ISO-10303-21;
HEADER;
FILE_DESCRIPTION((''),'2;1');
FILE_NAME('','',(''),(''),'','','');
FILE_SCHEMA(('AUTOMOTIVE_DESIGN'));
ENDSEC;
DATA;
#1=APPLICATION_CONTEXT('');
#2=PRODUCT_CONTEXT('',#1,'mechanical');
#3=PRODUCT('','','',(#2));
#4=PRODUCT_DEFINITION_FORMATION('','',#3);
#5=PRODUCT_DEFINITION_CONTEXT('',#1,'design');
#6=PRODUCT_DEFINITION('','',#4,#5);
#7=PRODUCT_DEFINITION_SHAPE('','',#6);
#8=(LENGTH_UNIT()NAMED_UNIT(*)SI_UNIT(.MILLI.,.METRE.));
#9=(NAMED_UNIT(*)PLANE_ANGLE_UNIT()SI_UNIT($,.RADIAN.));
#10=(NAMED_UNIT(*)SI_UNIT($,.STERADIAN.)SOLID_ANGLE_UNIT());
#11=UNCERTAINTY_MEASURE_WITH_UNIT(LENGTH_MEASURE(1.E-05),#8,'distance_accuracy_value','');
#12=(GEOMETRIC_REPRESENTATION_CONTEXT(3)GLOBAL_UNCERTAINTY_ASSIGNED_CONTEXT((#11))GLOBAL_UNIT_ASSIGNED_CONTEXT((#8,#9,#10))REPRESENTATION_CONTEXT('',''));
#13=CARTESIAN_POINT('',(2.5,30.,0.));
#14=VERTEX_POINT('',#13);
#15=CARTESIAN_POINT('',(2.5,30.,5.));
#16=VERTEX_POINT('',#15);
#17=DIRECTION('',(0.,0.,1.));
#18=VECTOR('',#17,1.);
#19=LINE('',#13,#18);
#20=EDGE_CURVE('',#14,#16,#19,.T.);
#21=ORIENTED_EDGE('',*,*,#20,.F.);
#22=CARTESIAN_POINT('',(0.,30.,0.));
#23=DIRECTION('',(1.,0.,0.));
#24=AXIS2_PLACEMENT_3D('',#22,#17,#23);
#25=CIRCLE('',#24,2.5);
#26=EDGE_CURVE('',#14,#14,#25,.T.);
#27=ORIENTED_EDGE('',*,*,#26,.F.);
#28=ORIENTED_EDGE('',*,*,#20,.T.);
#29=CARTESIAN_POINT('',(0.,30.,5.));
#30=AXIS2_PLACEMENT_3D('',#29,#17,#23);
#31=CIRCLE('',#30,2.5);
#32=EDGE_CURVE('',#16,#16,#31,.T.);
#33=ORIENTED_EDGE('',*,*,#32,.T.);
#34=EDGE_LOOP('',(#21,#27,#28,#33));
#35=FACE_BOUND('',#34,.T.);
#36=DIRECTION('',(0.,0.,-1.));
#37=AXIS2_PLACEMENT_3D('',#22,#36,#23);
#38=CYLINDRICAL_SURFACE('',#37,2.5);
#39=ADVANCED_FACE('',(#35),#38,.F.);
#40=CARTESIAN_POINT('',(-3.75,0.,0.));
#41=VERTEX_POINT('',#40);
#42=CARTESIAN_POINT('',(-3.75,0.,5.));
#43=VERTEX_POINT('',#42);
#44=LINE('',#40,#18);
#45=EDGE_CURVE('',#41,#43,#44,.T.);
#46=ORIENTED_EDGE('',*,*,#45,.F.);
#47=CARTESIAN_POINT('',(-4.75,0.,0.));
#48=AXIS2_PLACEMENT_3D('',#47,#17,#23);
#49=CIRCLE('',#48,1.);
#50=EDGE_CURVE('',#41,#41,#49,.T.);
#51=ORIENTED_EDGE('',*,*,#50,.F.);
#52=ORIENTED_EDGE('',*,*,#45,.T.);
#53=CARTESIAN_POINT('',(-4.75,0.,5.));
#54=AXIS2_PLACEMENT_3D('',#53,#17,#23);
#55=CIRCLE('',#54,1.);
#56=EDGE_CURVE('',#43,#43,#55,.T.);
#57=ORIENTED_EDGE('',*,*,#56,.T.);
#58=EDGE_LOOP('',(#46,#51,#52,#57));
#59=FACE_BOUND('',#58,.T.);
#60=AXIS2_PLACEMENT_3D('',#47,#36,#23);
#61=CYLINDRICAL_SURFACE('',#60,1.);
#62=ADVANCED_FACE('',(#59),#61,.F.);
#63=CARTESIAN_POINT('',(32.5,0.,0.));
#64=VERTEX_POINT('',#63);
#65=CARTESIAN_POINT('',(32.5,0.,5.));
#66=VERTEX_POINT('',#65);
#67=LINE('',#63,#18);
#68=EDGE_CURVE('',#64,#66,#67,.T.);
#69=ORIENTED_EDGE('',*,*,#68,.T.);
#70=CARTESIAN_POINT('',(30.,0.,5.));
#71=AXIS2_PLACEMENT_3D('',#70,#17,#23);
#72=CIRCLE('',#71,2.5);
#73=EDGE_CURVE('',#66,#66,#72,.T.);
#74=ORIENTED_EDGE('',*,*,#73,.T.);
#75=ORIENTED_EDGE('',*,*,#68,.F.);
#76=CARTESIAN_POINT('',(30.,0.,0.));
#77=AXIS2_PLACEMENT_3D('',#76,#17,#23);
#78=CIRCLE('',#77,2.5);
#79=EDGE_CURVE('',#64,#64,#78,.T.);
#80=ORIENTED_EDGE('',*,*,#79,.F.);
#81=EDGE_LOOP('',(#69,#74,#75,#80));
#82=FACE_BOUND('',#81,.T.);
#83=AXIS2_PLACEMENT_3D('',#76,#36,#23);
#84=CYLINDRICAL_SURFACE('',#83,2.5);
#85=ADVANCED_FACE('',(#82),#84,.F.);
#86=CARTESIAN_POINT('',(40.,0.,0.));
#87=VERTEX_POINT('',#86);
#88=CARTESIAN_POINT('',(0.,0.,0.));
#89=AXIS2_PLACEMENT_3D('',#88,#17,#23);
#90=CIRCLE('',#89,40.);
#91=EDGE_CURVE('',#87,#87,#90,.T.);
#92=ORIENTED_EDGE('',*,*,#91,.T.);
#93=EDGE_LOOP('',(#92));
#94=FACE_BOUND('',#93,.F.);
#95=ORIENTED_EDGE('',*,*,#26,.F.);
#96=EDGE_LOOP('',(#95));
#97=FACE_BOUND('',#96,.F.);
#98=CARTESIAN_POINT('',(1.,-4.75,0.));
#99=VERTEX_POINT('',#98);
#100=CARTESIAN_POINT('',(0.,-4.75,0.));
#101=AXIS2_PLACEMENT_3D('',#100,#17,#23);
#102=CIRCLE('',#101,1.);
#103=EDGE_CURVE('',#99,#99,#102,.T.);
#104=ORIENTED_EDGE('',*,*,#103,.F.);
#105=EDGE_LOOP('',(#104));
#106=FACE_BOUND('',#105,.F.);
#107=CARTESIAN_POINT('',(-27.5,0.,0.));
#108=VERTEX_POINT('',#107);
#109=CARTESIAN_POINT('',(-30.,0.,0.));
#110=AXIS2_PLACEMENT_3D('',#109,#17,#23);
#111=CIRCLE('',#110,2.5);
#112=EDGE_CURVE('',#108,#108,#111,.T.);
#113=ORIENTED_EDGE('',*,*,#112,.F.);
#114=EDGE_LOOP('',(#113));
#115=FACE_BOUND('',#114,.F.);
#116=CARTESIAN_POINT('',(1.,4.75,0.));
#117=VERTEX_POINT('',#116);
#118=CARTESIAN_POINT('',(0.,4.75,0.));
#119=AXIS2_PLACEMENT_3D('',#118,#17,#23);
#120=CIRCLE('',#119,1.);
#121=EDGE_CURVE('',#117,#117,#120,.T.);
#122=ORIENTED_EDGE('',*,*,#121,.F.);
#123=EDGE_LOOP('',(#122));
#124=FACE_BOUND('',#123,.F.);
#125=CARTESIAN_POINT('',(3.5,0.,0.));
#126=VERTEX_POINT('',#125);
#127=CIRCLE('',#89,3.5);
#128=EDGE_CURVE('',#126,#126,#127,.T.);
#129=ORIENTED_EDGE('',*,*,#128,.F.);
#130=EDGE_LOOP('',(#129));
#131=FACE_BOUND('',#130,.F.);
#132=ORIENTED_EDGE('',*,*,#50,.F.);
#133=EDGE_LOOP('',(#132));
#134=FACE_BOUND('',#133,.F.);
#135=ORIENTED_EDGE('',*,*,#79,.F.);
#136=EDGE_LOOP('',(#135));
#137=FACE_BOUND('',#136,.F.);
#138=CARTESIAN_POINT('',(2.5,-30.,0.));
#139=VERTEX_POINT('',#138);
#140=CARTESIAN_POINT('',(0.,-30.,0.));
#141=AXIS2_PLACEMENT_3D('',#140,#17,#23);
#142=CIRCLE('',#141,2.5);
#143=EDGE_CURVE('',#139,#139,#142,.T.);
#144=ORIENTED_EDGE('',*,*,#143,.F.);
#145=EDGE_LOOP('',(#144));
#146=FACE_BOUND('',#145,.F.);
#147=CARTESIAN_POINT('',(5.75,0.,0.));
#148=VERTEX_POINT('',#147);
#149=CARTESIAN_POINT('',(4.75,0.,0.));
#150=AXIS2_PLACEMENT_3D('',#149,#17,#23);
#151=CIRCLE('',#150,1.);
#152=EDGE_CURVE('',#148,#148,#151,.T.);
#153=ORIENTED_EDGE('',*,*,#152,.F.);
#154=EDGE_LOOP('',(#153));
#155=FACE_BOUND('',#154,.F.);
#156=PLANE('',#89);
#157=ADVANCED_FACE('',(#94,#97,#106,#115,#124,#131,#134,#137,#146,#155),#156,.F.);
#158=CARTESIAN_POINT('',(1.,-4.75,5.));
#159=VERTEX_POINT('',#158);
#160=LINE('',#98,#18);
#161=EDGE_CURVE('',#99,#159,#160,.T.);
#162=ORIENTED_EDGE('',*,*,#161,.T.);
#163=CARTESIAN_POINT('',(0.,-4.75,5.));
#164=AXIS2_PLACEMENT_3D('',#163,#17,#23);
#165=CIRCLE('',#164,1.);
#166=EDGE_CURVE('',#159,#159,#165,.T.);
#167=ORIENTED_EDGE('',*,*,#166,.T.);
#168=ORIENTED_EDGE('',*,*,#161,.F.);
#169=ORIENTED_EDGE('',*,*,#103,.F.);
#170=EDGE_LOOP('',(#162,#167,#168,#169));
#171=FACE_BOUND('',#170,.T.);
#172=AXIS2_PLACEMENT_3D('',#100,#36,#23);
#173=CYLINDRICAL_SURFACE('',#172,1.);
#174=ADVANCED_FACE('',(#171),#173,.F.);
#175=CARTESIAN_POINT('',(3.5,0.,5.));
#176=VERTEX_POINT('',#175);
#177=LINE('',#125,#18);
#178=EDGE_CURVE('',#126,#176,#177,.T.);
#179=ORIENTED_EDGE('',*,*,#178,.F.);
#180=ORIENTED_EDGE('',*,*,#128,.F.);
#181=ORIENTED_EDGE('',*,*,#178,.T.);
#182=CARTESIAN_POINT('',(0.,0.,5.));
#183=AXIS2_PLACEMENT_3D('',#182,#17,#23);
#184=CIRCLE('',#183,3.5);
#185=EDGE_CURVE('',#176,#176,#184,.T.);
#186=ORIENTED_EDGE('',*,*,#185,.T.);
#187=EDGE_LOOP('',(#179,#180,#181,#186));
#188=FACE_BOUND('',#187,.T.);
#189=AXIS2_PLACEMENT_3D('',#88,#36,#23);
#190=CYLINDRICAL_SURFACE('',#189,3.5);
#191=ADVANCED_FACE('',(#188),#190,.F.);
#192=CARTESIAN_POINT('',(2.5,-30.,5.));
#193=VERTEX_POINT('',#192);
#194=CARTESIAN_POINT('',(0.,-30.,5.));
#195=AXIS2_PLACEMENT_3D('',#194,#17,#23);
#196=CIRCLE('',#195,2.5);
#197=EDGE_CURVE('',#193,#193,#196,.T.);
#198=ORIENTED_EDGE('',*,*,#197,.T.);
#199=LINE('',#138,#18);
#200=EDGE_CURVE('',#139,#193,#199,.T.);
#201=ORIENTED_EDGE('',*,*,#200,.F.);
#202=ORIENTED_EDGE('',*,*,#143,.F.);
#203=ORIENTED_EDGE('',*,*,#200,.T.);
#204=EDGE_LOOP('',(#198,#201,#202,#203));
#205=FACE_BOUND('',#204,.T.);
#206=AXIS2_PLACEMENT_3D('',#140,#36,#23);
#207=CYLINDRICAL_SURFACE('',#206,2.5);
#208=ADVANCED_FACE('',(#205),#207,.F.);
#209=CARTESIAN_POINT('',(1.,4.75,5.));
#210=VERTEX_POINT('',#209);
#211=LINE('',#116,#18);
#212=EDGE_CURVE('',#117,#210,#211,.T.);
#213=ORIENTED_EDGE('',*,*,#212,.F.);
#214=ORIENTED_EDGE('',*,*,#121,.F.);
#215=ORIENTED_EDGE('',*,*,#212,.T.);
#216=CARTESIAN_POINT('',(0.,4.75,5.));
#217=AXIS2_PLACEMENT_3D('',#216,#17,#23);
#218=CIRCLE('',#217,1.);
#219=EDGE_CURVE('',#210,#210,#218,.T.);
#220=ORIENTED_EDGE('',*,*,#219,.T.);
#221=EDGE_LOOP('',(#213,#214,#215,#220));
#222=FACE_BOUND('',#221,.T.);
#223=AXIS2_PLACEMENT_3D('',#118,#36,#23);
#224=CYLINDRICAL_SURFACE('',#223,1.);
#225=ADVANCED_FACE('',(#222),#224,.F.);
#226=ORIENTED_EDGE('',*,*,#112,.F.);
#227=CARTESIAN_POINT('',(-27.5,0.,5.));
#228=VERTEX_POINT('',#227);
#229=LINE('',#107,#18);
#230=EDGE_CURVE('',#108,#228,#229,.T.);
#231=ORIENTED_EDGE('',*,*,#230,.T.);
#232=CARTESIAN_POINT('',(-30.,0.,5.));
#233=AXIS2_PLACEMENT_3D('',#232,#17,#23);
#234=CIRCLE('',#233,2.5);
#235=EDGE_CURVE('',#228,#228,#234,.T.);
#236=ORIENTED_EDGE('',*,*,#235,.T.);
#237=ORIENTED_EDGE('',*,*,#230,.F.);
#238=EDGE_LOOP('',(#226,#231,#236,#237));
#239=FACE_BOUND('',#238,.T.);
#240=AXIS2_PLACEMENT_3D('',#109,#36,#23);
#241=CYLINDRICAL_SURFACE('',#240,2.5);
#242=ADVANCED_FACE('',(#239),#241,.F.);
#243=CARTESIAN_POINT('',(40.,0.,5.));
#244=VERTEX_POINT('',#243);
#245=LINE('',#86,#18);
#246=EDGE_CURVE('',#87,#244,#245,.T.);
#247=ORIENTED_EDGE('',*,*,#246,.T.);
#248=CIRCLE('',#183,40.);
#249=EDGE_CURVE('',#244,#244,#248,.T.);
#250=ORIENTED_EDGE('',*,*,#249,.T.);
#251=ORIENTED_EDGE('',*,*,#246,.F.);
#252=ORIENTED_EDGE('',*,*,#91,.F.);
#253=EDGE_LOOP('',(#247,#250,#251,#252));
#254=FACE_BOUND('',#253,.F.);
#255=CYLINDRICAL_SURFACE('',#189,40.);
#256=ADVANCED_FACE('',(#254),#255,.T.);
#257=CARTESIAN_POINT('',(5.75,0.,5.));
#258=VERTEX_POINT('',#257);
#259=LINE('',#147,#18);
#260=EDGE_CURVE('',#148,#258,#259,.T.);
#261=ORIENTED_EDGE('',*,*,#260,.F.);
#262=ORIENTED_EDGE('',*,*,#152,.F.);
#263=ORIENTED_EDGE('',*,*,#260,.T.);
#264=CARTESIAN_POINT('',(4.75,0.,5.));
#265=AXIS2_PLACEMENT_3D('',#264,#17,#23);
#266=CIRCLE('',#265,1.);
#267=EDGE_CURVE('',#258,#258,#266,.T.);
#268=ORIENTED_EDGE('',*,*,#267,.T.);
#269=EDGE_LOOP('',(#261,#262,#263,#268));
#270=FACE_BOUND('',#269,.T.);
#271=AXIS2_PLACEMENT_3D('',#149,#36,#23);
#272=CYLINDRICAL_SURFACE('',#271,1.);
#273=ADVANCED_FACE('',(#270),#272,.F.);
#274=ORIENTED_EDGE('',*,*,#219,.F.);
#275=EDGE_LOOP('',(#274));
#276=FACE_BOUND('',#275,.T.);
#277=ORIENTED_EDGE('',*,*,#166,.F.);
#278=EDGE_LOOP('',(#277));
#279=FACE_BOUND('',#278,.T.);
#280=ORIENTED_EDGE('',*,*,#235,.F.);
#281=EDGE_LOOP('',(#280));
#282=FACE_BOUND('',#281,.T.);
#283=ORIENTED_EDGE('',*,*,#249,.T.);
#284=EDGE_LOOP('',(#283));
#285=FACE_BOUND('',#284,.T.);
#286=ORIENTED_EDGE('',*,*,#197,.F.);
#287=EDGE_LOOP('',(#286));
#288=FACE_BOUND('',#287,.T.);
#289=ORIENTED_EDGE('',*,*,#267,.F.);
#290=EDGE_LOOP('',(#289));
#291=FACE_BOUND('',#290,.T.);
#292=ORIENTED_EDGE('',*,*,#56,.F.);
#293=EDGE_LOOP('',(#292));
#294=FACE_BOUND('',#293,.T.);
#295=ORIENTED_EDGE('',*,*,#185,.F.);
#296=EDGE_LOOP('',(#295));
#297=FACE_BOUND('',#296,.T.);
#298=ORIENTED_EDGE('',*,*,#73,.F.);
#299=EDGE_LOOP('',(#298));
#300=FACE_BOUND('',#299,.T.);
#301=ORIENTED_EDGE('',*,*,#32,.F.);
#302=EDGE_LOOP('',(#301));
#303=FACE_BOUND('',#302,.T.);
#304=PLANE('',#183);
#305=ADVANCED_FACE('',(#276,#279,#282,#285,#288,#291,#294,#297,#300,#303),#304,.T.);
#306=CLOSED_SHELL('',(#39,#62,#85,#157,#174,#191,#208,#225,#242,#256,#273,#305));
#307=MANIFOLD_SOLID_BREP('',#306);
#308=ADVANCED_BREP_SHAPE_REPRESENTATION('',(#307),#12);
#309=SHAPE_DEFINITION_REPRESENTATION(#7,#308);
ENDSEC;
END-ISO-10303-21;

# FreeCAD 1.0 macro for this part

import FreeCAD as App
import Part
import Sketcher

V = App.Vector

doc = App.newDocument("Part")
params = doc.addObject("Spreadsheet::Sheet", "Params")
for row, (alias, value) in enumerate([
    ("sketch1_diameter", "80 mm"),
    ("sketch1_diameter2", "5 mm"),
    ("sketch1_diameter3", "2 mm"),
    ("sketch1_diameter4", "7 mm"),
    ("pad1_length", "5 mm"),
], start=1):
    params.set(f"A{row}", alias)
    params.set(f"B{row}", "=" + value)
    params.setAlias(f"B{row}", alias)

body = doc.addObject("PartDesign::Body", "Body")

# Sketch on XY plane
sketch1 = doc.addObject("Sketcher::SketchObject", "Sketch")
body.addObject(sketch1)
sketch1.AttachmentSupport = (doc.XY_Plane, [""])
sketch1.MapMode = "FlatFace"
sketch1.addGeometry([
    Part.Circle(V(0, 0, 0), V(0, 0, 1), 40),  # 0
    Part.Circle(V(0, -30, 0), V(0, 0, 1), 2.5),  # 1
    Part.Circle(V(0, -4.8, 0), V(0, 0, 1), 1),  # 2
    Part.Circle(V(-30, 0, 0), V(0, 0, 1), 2.5),  # 3
    Part.Circle(V(-4.8, 0, 0), V(0, 0, 1), 1),  # 4
    Part.Circle(V(0, 0, 0), V(0, 0, 1), 3.5),  # 5
    Part.Circle(V(4.8, 0, 0), V(0, 0, 1), 1),  # 6
    Part.Circle(V(0, 4.8, 0), V(0, 0, 1), 1),  # 7
    Part.Circle(V(30, 0, 0), V(0, 0, 1), 2.5),  # 8
    Part.Circle(V(0, 30, 0), V(0, 0, 1), 2.5),  # 9
], False)
sketch1.addConstraint([
    Sketcher.Constraint("Coincident", 0, 3, -1, 1),
    Sketcher.Constraint("Coincident", 5, 3, -1, 1),
    Sketcher.Constraint("Equal", 1, 3),
    Sketcher.Constraint("Equal", 2, 4),
    Sketcher.Constraint("Equal", 4, 6),
    Sketcher.Constraint("Equal", 6, 7),
    Sketcher.Constraint("Equal", 3, 8),
    Sketcher.Constraint("Equal", 8, 9),
    Sketcher.Constraint("Symmetric", 4, 3, 6, 3, -1, 1),
    Sketcher.Constraint("Symmetric", 2, 3, 7, 3, -1, 1),
    Sketcher.Constraint("Symmetric", 3, 3, 8, 3, -1, 1),
    Sketcher.Constraint("Symmetric", 1, 3, 9, 3, -1, 1),
    Sketcher.Constraint("PointOnObject", 1, 3, -2),
    Sketcher.Constraint("PointOnObject", 2, 3, -2),
    Sketcher.Constraint("PointOnObject", 3, 3, -1),
    Sketcher.Constraint("PointOnObject", 4, 3, -1),
    Sketcher.Constraint("Diameter", 0, 80.0),
    Sketcher.Constraint("Diameter", 1, 5.0),
    Sketcher.Constraint("Diameter", 2, 2.0),
    Sketcher.Constraint("Diameter", 5, 7.0),
    Sketcher.Constraint("DistanceY", 1, 3, -1, 1, 30.0),
    Sketcher.Constraint("DistanceX", 3, 3, -1, 1, 30.0),
    Sketcher.Constraint("DistanceX", 4, 3, 6, 3, 9.5),
    Sketcher.Constraint("DistanceY", 2, 3, 7, 3, 9.5),
])
sketch1.setExpression("Constraints[16]", "Params.sketch1_diameter")
sketch1.setExpression("Constraints[17]", "Params.sketch1_diameter2")
sketch1.setExpression("Constraints[18]", "Params.sketch1_diameter3")
sketch1.setExpression("Constraints[19]", "Params.sketch1_diameter4")
pad1 = doc.addObject("PartDesign::Pad", "Pad")
body.addObject(pad1)
pad1.Profile = sketch1
pad1.setExpression("Length", "Params.pad1_length")

doc.recompute()
